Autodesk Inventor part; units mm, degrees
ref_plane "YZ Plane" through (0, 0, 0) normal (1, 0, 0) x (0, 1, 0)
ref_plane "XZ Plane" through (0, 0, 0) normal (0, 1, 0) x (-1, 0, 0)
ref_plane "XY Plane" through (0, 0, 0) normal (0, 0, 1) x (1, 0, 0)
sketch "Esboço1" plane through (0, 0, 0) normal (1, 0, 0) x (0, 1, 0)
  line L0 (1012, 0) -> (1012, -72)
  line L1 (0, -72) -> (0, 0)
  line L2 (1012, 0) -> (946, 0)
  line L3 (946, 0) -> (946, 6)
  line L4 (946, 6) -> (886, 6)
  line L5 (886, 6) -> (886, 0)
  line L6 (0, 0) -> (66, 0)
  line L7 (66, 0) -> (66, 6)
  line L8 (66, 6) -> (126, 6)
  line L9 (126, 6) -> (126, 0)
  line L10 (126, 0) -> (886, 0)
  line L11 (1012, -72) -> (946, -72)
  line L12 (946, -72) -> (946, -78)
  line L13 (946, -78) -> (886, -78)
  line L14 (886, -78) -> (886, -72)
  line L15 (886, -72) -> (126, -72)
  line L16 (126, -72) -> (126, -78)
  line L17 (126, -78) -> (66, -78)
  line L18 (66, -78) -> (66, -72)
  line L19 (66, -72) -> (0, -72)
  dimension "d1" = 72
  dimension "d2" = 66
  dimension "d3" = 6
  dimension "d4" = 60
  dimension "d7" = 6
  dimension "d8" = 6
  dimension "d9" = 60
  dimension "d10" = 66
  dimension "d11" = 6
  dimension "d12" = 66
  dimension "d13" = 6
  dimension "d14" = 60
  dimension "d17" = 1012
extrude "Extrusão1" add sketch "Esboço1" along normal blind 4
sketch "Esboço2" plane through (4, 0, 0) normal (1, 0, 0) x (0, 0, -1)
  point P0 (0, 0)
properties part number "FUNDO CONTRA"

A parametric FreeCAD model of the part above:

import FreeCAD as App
import Part
import Sketcher
Q = App.Units.Quantity

doc = App.newDocument("Part")
body = doc.addObject("PartDesign::Body", "Body")

# Sketch on YZ plane
sketch1 = body.newObject("Sketcher::SketchObject", "Sketch")
sketch1.AttachmentSupport = (doc.getObject("YZ_Plane"), [""])
sketch1.MapMode = "FlatFace"
sketch1.addGeometry([
    Part.LineSegment(App.Vector(1012, -72, 0), App.Vector(1012, 0, 0)),  # 0
    Part.LineSegment(App.Vector(1012, 0, 0), App.Vector(946, 0, 0)),  # 1
    Part.LineSegment(App.Vector(946, 0, 0), App.Vector(946, 6, 0)),  # 2
    Part.LineSegment(App.Vector(946, 6, 0), App.Vector(886, 6, 0)),  # 3
    Part.LineSegment(App.Vector(886, 6, 0), App.Vector(886, 0, 0)),  # 4
    Part.LineSegment(App.Vector(886, 0, 0), App.Vector(126, 0, 0)),  # 5
    Part.LineSegment(App.Vector(126, 0, 0), App.Vector(126, 6, 0)),  # 6
    Part.LineSegment(App.Vector(126, 6, 0), App.Vector(66, 6, 0)),  # 7
    Part.LineSegment(App.Vector(66, 6, 0), App.Vector(66, 0, 0)),  # 8
    Part.LineSegment(App.Vector(66, 0, 0), App.Vector(0, 0, 0)),  # 9
    Part.LineSegment(App.Vector(0, 0, 0), App.Vector(0, -72, 0)),  # 10
    Part.LineSegment(App.Vector(0, -72, 0), App.Vector(66, -72, 0)),  # 11
    Part.LineSegment(App.Vector(66, -72, 0), App.Vector(66, -78, 0)),  # 12
    Part.LineSegment(App.Vector(66, -78, 0), App.Vector(126, -78, 0)),  # 13
    Part.LineSegment(App.Vector(126, -78, 0), App.Vector(126, -72, 0)),  # 14
    Part.LineSegment(App.Vector(126, -72, 0), App.Vector(886, -72, 0)),  # 15
    Part.LineSegment(App.Vector(886, -72, 0), App.Vector(886, -78, 0)),  # 16
    Part.LineSegment(App.Vector(886, -78, 0), App.Vector(946, -78, 0)),  # 17
    Part.LineSegment(App.Vector(946, -78, 0), App.Vector(946, -72, 0)),  # 18
    Part.LineSegment(App.Vector(946, -72, 0), App.Vector(1012, -72, 0)),  # 19
], False)
sketch1.addConstraint([
    Sketcher.Constraint("Coincident", 0, 2, 1, 1),
    Sketcher.Constraint("Coincident", 1, 2, 2, 1),
    Sketcher.Constraint("Coincident", 2, 2, 3, 1),
    Sketcher.Constraint("Coincident", 3, 2, 4, 1),
    Sketcher.Constraint("Coincident", 4, 2, 5, 1),
    Sketcher.Constraint("Coincident", 5, 2, 6, 1),
    Sketcher.Constraint("Coincident", 6, 2, 7, 1),
    Sketcher.Constraint("Coincident", 7, 2, 8, 1),
    Sketcher.Constraint("Coincident", 8, 2, 9, 1),
    Sketcher.Constraint("Coincident", 9, 2, 10, 1),
    Sketcher.Constraint("Coincident", 10, 2, 11, 1),
    Sketcher.Constraint("Coincident", 11, 2, 12, 1),
    Sketcher.Constraint("Coincident", 12, 2, 13, 1),
    Sketcher.Constraint("Coincident", 13, 2, 14, 1),
    Sketcher.Constraint("Coincident", 14, 2, 15, 1),
    Sketcher.Constraint("Coincident", 15, 2, 16, 1),
    Sketcher.Constraint("Coincident", 16, 2, 17, 1),
    Sketcher.Constraint("Coincident", 17, 2, 18, 1),
    Sketcher.Constraint("Coincident", 18, 2, 19, 1),
    Sketcher.Constraint("Coincident", 19, 2, 0, 1),
    Sketcher.Constraint("Vertical", 0),
    Sketcher.Constraint("Horizontal", 1),
    Sketcher.Constraint("Vertical", 2),
    Sketcher.Constraint("Horizontal", 3),
    Sketcher.Constraint("Vertical", 4),
    Sketcher.Constraint("Horizontal", 5),
    Sketcher.Constraint("Vertical", 6),
    Sketcher.Constraint("Horizontal", 7),
    Sketcher.Constraint("Vertical", 8),
    Sketcher.Constraint("Horizontal", 9),
    Sketcher.Constraint("Vertical", 10),
    Sketcher.Constraint("Horizontal", 11),
    Sketcher.Constraint("Vertical", 12),
    Sketcher.Constraint("Horizontal", 13),
    Sketcher.Constraint("Vertical", 14),
    Sketcher.Constraint("Horizontal", 15),
    Sketcher.Constraint("Vertical", 16),
    Sketcher.Constraint("Horizontal", 17),
    Sketcher.Constraint("Vertical", 18),
    Sketcher.Constraint("Horizontal", 19),
    Sketcher.Constraint("Coincident", 9, 2, -1, 1),
    Sketcher.Constraint("PointOnObject", 0, 2, -1),
    Sketcher.Constraint("PointOnObject", 4, 2, -1),
    Sketcher.Constraint("Horizontal", 3, 2, 6, 2),
    Sketcher.Constraint("Horizontal", 11, 2, 14, 2),
    Sketcher.Constraint("Horizontal", 13, 2, 16, 2),
    Sketcher.Constraint("Horizontal", 15, 2, 18, 2),
    Sketcher.Constraint("Vertical", 8, 2, 11, 2),
    Sketcher.Constraint("Vertical", 6, 2, 13, 2),
    Sketcher.Constraint("Vertical", 4, 2, 15, 2),
    Sketcher.Constraint("Vertical", 2, 2, 17, 2),
    Sketcher.Constraint("Equal", 3, 7),
    Sketcher.Constraint("Equal", 1, 9),
    Sketcher.Constraint("Equal", 8, 12),
    Sketcher.Constraint("DistanceX", 1, 2, 1, 1, Q("66 mm")),
    Sketcher.Constraint("DistanceX", 3, 2, 3, 1, Q("60 mm")),
    Sketcher.Constraint("DistanceY", 0, 1, 0, 2, Q("72 mm")),
    Sketcher.Constraint("DistanceY", 2, 1, 2, 2, Q("6 mm")),
    Sketcher.Constraint("DistanceX", -1, 1, 0, 2, Q("1012 mm")),
])
pad1 = body.newObject("PartDesign::Pad", "Pad")
pad1.Profile = sketch1
pad1.Length = 4

doc.recompute()
